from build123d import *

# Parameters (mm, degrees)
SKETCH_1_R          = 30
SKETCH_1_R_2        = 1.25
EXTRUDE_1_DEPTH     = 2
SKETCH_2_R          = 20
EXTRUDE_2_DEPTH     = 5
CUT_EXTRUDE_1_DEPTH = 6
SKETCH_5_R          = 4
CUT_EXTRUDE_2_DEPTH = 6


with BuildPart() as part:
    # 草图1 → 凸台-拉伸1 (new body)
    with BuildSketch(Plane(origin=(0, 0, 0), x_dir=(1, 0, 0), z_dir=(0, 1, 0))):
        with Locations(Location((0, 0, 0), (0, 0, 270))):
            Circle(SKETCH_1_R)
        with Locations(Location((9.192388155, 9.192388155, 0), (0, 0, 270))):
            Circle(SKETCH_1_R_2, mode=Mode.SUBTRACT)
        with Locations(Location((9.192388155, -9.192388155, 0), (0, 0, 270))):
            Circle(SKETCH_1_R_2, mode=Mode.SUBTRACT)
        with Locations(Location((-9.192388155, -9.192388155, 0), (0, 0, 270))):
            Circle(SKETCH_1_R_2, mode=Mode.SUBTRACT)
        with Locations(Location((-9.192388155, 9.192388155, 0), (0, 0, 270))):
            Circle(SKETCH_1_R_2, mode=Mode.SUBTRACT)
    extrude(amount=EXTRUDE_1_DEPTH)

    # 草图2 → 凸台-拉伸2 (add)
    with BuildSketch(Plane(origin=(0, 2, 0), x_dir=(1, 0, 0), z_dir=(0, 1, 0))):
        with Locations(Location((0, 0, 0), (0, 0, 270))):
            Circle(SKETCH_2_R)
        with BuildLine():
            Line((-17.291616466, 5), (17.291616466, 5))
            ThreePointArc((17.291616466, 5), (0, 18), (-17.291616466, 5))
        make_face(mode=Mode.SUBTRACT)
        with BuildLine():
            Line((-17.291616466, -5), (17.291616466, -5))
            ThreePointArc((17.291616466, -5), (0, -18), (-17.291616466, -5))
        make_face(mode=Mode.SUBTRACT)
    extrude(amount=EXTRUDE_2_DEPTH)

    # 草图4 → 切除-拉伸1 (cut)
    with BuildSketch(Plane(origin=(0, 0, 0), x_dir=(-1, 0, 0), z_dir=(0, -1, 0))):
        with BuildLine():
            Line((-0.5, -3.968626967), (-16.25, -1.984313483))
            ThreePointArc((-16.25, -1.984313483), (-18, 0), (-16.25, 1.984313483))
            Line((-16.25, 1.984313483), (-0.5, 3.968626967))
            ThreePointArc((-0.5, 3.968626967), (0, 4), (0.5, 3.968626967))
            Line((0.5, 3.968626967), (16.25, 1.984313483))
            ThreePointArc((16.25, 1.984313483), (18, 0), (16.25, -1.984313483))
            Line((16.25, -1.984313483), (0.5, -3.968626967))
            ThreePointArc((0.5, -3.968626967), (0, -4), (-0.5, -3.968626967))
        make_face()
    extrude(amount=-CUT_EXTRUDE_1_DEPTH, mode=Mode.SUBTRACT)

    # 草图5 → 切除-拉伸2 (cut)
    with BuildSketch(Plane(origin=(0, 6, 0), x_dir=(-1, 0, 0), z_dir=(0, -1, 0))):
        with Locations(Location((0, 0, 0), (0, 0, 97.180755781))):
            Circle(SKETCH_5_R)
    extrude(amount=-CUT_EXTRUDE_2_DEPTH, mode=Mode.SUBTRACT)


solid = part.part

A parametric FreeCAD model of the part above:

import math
import FreeCAD as App
import Part
import Sketcher

V = App.Vector
Q = App.Units.Quantity

doc = App.newDocument("Part")
body = doc.addObject("PartDesign::Body", "Body")

# Sketch on XZ plane
sketch1 = body.newObject("Sketcher::SketchObject", "Sketch")
sketch1.AttachmentSupport = (doc.getObject("XZ_Plane"), [""])
sketch1.MapMode = "FlatFace"
sketch1.addGeometry([
    Part.Circle(V(0, 0, 0), V(0, 0, 1), 30),  # 0
    Part.Circle(V(-9.2, -9.2, 0), V(0, 0, 1), 1.2),  # 1
    Part.Circle(V(-9.2, 9.2, 0), V(0, 0, 1), 1.2),  # 2
    Part.Circle(V(9.2, -9.2, 0), V(0, 0, 1), 1.2),  # 3
    Part.Circle(V(9.2, 9.2, 0), V(0, 0, 1), 1.2),  # 4
], False)
sketch1.addConstraint([
    Sketcher.Constraint("Coincident", 0, 3, -1, 1),
    Sketcher.Constraint("Equal", 1, 2),
    Sketcher.Constraint("Equal", 2, 3),
    Sketcher.Constraint("Equal", 3, 4),
    Sketcher.Constraint("Symmetric", 2, 3, 3, 3, -1, 1),
    Sketcher.Constraint("Symmetric", 1, 3, 4, 3, -1, 1),
    Sketcher.Constraint("Symmetric", 1, 3, 3, 3, -2),
    Sketcher.Constraint("Diameter", 0, Q("60 mm")),
    Sketcher.Constraint("Diameter", 1, Q("2.5 mm")),
    Sketcher.Constraint("DistanceX", 1, 3, -1, 1, Q("9.192388 mm")),
    Sketcher.Constraint("DistanceY", 1, 3, -1, 1, Q("9.192388 mm")),
])
pad1 = body.newObject("PartDesign::Pad", "Pad")
pad1.Profile = sketch1
pad1.Length = 2
pad1.Reversed = True

# Sketch on XZ plane
sketch2 = body.newObject("Sketcher::SketchObject", "Sketch001")
sketch2.AttachmentSupport = (doc.getObject("XZ_Plane"), [""])
sketch2.MapMode = "FlatFace"
sketch2.AttachmentOffset = App.Placement(V(0, 0, -2), App.Rotation())
sketch2.addGeometry([
    Part.Circle(V(0, 0, 0), V(0, 0, 1), 20),  # 0
    Part.LineSegment(V(17, -5, 0), V(-17, -5, 0)),  # 1
    Part.ArcOfCircle(Part.Circle(V(0, 0, 0), V(0, 0, 1), 18), math.radians(-164), math.radians(-16)),  # 2
    Part.ArcOfCircle(Part.Circle(V(0, 0, 0), V(0, 0, 1), 18), math.radians(16), math.radians(164)),  # 3
    Part.LineSegment(V(-17, 5, 0), V(17, 5, 0)),  # 4
], False)
sketch2.addConstraint([
    Sketcher.Constraint("Coincident", 1, 1, 2, 2),
    Sketcher.Constraint("Coincident", 2, 1, 1, 2),
    Sketcher.Constraint("Coincident", 3, 1, 4, 2),
    Sketcher.Constraint("Coincident", 4, 1, 3, 2),
    Sketcher.Constraint("Horizontal", 1),
    Sketcher.Constraint("Horizontal", 4),
    Sketcher.Constraint("Coincident", 0, 3, -1, 1),
    Sketcher.Constraint("Coincident", 2, 3, -1, 1),
    Sketcher.Constraint("Coincident", 3, 3, -1, 1),
    Sketcher.Constraint("Equal", 2, 3),
    Sketcher.Constraint("Vertical", 1, 1, 3, 1),
    Sketcher.Constraint("Diameter", 0, Q("40 mm")),
    Sketcher.Constraint("Radius", 2, Q("18 mm")),
    Sketcher.Constraint("DistanceY", 1, 1, -1, 1, Q("5 mm")),
])
pad2 = body.newObject("PartDesign::Pad", "Pad001")
pad2.Profile = sketch2
pad2.Length = 5
pad2.Reversed = True

# Sketch on XZ plane
sketch3 = body.newObject("Sketcher::SketchObject", "Sketch002")
sketch3.AttachmentSupport = (doc.getObject("XZ_Plane"), [""])
sketch3.MapMode = "FlatFace"
sketch3.addGeometry([
    Part.LineSegment(V(16.2, 2, 0), V(0.5, 4, 0)),  # 0
    Part.ArcOfCircle(Part.Circle(V(0, 0, 0), V(0, 0, 1), 4), math.radians(82.82), math.radians(97.18)),  # 1
    Part.LineSegment(V(-0.5, 4, 0), V(-16.2, 2, 0)),  # 2
    Part.ArcOfCircle(Part.Circle(V(-16, 0, 0), V(0, 0, 1), 2), math.radians(97), math.radians(263)),  # 3
    Part.LineSegment(V(-16.2, -2, 0), V(-0.5, -4, 0)),  # 4
    Part.ArcOfCircle(Part.Circle(V(0, 0, 0), V(0, 0, 1), 4), math.radians(-97.18), math.radians(-82.82)),  # 5
    Part.LineSegment(V(0.5, -4, 0), V(16.2, -2, 0)),  # 6
    Part.ArcOfCircle(Part.Circle(V(16, 0, 0), V(0, 0, 1), 2), math.radians(-83), math.radians(83)),  # 7
], False)
sketch3.addConstraint([
    Sketcher.Constraint("Tangent", 0, 2, 1, 1),
    Sketcher.Constraint("Tangent", 1, 2, 2, 1),
    Sketcher.Constraint("Tangent", 2, 2, 3, 1),
    Sketcher.Constraint("Tangent", 3, 2, 4, 1),
    Sketcher.Constraint("Tangent", 4, 2, 5, 1),
    Sketcher.Constraint("Tangent", 5, 2, 6, 1),
    Sketcher.Constraint("Tangent", 6, 2, 7, 1),
    Sketcher.Constraint("Tangent", 7, 2, 0, 1),
    Sketcher.Constraint("Coincident", 1, 3, -1, 1),
    Sketcher.Constraint("Coincident", 5, 3, -1, 1),
    Sketcher.Constraint("Equal", 1, 5),
    Sketcher.Constraint("Equal", 3, 7),
    Sketcher.Constraint("Symmetric", 3, 3, 7, 3, -1, 1),
    Sketcher.Constraint("PointOnObject", 3, 3, -1),
    Sketcher.Constraint("Radius", 1, Q("4 mm")),
    Sketcher.Constraint("Radius", 3, Q("2 mm")),
    Sketcher.Constraint("DistanceX", 3, 3, -1, 1, Q("16 mm")),
])
pocket1 = body.newObject("PartDesign::Pocket", "Pocket")
pocket1.Profile = sketch3
pocket1.Length = 6

# Sketch on XZ plane
sketch4 = body.newObject("Sketcher::SketchObject", "Sketch003")
sketch4.AttachmentSupport = (doc.getObject("XZ_Plane"), [""])
sketch4.MapMode = "FlatFace"
sketch4.AttachmentOffset = App.Placement(V(0, 0, -6), App.Rotation())
sketch4.addGeometry(Part.Circle(V(0, 0, 0), V(0, 0, 1), 4), False)
sketch4.addConstraint([
    Sketcher.Constraint("Coincident", 0, 3, -1, 1),
    Sketcher.Constraint("Diameter", 0, Q("8 mm")),
])
pocket2 = body.newObject("PartDesign::Pocket", "Pocket001")
pocket2.Profile = sketch4
pocket2.Length = 6

doc.recompute()
